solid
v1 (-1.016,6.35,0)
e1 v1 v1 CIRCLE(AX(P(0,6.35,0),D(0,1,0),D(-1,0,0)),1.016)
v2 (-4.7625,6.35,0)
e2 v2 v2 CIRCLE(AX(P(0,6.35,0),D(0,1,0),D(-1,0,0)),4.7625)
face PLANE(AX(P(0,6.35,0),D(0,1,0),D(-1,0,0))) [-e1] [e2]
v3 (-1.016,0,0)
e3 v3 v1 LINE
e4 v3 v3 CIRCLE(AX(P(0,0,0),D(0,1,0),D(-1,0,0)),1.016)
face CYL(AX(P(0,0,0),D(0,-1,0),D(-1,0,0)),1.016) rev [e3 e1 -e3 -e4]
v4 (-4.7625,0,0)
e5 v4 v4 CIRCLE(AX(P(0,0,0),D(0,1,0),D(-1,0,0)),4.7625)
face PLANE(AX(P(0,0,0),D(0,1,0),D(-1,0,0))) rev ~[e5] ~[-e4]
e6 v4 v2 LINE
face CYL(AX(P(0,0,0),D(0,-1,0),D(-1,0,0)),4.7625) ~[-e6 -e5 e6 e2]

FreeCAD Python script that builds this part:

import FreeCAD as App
import Part
import Sketcher
Q = App.Units.Quantity

doc = App.newDocument("Part")
body = doc.addObject("PartDesign::Body", "Body")

sketch1 = doc.addObject("Sketcher::SketchObject", "Sketch")
body.addObject(sketch1)
sketch1.AttachmentSupport = (doc.XZ_Plane, [""])
sketch1.MapMode = "FlatFace"
sketch1.addGeometry([
    Part.Circle(App.Vector(0, 0, 0), App.Vector(0, 0, 1), 4.8),
    Part.Circle(App.Vector(0, 0, 0), App.Vector(0, 0, 1), 1),
], False)
sketch1.addConstraint([
    Sketcher.Constraint("Coincident", 0, 3, -1, 1),
    Sketcher.Constraint("Coincident", 1, 3, -1, 1),
    Sketcher.Constraint("Diameter", 1, Q("0.08 in")),
    Sketcher.Constraint("Diameter", 0, Q("0.375 in")),
])
pad1 = doc.addObject("PartDesign::Pad", "Pad")
body.addObject(pad1)
pad1.Profile = sketch1
pad1.Length = Q("0.25 in")
pad1.Reversed = True

doc.recompute()
